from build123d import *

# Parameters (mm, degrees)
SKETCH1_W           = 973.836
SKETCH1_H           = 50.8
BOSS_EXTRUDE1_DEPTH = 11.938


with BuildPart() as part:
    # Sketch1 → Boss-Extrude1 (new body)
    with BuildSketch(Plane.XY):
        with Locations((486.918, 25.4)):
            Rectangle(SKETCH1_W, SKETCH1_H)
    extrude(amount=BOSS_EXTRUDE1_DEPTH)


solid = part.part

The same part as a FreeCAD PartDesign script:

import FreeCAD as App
import Part
import Sketcher

V = App.Vector
Q = App.Units.Quantity

doc = App.newDocument("Part")
body = doc.addObject("PartDesign::Body", "Body")

# Sketch on XY plane
sketch1 = body.newObject("Sketcher::SketchObject", "Sketch")
sketch1.AttachmentSupport = (doc.getObject("XY_Plane"), [""])
sketch1.MapMode = "FlatFace"
sketch1.addGeometry([
    Part.LineSegment(V(0, 51, 0), V(0, 0, 0)),
    Part.LineSegment(V(0, 0, 0), V(974, 0, 0)),
    Part.LineSegment(V(974, 0, 0), V(974, 51, 0)),
    Part.LineSegment(V(974, 51, 0), V(0, 51, 0)),
], False)
sketch1.addConstraint([
    Sketcher.Constraint("Coincident", 0, 2, 1, 1),
    Sketcher.Constraint("Coincident", 1, 2, 2, 1),
    Sketcher.Constraint("Coincident", 2, 2, 3, 1),
    Sketcher.Constraint("Coincident", 3, 2, 0, 1),
    Sketcher.Constraint("Vertical", 0),
    Sketcher.Constraint("Horizontal", 1),
    Sketcher.Constraint("Vertical", 2),
    Sketcher.Constraint("Horizontal", 3),
    Sketcher.Constraint("Coincident", 0, 2, -1, 1),
    Sketcher.Constraint("DistanceY", 0, 2, 0, 1, Q("2 in")),
    Sketcher.Constraint("DistanceX", 1, 1, 1, 2, Q("38.34 in")),
])
pad1 = body.newObject("PartDesign::Pad", "Pad")
pad1.Profile = sketch1
pad1.Length = Q("0.47 in")

doc.recompute()
